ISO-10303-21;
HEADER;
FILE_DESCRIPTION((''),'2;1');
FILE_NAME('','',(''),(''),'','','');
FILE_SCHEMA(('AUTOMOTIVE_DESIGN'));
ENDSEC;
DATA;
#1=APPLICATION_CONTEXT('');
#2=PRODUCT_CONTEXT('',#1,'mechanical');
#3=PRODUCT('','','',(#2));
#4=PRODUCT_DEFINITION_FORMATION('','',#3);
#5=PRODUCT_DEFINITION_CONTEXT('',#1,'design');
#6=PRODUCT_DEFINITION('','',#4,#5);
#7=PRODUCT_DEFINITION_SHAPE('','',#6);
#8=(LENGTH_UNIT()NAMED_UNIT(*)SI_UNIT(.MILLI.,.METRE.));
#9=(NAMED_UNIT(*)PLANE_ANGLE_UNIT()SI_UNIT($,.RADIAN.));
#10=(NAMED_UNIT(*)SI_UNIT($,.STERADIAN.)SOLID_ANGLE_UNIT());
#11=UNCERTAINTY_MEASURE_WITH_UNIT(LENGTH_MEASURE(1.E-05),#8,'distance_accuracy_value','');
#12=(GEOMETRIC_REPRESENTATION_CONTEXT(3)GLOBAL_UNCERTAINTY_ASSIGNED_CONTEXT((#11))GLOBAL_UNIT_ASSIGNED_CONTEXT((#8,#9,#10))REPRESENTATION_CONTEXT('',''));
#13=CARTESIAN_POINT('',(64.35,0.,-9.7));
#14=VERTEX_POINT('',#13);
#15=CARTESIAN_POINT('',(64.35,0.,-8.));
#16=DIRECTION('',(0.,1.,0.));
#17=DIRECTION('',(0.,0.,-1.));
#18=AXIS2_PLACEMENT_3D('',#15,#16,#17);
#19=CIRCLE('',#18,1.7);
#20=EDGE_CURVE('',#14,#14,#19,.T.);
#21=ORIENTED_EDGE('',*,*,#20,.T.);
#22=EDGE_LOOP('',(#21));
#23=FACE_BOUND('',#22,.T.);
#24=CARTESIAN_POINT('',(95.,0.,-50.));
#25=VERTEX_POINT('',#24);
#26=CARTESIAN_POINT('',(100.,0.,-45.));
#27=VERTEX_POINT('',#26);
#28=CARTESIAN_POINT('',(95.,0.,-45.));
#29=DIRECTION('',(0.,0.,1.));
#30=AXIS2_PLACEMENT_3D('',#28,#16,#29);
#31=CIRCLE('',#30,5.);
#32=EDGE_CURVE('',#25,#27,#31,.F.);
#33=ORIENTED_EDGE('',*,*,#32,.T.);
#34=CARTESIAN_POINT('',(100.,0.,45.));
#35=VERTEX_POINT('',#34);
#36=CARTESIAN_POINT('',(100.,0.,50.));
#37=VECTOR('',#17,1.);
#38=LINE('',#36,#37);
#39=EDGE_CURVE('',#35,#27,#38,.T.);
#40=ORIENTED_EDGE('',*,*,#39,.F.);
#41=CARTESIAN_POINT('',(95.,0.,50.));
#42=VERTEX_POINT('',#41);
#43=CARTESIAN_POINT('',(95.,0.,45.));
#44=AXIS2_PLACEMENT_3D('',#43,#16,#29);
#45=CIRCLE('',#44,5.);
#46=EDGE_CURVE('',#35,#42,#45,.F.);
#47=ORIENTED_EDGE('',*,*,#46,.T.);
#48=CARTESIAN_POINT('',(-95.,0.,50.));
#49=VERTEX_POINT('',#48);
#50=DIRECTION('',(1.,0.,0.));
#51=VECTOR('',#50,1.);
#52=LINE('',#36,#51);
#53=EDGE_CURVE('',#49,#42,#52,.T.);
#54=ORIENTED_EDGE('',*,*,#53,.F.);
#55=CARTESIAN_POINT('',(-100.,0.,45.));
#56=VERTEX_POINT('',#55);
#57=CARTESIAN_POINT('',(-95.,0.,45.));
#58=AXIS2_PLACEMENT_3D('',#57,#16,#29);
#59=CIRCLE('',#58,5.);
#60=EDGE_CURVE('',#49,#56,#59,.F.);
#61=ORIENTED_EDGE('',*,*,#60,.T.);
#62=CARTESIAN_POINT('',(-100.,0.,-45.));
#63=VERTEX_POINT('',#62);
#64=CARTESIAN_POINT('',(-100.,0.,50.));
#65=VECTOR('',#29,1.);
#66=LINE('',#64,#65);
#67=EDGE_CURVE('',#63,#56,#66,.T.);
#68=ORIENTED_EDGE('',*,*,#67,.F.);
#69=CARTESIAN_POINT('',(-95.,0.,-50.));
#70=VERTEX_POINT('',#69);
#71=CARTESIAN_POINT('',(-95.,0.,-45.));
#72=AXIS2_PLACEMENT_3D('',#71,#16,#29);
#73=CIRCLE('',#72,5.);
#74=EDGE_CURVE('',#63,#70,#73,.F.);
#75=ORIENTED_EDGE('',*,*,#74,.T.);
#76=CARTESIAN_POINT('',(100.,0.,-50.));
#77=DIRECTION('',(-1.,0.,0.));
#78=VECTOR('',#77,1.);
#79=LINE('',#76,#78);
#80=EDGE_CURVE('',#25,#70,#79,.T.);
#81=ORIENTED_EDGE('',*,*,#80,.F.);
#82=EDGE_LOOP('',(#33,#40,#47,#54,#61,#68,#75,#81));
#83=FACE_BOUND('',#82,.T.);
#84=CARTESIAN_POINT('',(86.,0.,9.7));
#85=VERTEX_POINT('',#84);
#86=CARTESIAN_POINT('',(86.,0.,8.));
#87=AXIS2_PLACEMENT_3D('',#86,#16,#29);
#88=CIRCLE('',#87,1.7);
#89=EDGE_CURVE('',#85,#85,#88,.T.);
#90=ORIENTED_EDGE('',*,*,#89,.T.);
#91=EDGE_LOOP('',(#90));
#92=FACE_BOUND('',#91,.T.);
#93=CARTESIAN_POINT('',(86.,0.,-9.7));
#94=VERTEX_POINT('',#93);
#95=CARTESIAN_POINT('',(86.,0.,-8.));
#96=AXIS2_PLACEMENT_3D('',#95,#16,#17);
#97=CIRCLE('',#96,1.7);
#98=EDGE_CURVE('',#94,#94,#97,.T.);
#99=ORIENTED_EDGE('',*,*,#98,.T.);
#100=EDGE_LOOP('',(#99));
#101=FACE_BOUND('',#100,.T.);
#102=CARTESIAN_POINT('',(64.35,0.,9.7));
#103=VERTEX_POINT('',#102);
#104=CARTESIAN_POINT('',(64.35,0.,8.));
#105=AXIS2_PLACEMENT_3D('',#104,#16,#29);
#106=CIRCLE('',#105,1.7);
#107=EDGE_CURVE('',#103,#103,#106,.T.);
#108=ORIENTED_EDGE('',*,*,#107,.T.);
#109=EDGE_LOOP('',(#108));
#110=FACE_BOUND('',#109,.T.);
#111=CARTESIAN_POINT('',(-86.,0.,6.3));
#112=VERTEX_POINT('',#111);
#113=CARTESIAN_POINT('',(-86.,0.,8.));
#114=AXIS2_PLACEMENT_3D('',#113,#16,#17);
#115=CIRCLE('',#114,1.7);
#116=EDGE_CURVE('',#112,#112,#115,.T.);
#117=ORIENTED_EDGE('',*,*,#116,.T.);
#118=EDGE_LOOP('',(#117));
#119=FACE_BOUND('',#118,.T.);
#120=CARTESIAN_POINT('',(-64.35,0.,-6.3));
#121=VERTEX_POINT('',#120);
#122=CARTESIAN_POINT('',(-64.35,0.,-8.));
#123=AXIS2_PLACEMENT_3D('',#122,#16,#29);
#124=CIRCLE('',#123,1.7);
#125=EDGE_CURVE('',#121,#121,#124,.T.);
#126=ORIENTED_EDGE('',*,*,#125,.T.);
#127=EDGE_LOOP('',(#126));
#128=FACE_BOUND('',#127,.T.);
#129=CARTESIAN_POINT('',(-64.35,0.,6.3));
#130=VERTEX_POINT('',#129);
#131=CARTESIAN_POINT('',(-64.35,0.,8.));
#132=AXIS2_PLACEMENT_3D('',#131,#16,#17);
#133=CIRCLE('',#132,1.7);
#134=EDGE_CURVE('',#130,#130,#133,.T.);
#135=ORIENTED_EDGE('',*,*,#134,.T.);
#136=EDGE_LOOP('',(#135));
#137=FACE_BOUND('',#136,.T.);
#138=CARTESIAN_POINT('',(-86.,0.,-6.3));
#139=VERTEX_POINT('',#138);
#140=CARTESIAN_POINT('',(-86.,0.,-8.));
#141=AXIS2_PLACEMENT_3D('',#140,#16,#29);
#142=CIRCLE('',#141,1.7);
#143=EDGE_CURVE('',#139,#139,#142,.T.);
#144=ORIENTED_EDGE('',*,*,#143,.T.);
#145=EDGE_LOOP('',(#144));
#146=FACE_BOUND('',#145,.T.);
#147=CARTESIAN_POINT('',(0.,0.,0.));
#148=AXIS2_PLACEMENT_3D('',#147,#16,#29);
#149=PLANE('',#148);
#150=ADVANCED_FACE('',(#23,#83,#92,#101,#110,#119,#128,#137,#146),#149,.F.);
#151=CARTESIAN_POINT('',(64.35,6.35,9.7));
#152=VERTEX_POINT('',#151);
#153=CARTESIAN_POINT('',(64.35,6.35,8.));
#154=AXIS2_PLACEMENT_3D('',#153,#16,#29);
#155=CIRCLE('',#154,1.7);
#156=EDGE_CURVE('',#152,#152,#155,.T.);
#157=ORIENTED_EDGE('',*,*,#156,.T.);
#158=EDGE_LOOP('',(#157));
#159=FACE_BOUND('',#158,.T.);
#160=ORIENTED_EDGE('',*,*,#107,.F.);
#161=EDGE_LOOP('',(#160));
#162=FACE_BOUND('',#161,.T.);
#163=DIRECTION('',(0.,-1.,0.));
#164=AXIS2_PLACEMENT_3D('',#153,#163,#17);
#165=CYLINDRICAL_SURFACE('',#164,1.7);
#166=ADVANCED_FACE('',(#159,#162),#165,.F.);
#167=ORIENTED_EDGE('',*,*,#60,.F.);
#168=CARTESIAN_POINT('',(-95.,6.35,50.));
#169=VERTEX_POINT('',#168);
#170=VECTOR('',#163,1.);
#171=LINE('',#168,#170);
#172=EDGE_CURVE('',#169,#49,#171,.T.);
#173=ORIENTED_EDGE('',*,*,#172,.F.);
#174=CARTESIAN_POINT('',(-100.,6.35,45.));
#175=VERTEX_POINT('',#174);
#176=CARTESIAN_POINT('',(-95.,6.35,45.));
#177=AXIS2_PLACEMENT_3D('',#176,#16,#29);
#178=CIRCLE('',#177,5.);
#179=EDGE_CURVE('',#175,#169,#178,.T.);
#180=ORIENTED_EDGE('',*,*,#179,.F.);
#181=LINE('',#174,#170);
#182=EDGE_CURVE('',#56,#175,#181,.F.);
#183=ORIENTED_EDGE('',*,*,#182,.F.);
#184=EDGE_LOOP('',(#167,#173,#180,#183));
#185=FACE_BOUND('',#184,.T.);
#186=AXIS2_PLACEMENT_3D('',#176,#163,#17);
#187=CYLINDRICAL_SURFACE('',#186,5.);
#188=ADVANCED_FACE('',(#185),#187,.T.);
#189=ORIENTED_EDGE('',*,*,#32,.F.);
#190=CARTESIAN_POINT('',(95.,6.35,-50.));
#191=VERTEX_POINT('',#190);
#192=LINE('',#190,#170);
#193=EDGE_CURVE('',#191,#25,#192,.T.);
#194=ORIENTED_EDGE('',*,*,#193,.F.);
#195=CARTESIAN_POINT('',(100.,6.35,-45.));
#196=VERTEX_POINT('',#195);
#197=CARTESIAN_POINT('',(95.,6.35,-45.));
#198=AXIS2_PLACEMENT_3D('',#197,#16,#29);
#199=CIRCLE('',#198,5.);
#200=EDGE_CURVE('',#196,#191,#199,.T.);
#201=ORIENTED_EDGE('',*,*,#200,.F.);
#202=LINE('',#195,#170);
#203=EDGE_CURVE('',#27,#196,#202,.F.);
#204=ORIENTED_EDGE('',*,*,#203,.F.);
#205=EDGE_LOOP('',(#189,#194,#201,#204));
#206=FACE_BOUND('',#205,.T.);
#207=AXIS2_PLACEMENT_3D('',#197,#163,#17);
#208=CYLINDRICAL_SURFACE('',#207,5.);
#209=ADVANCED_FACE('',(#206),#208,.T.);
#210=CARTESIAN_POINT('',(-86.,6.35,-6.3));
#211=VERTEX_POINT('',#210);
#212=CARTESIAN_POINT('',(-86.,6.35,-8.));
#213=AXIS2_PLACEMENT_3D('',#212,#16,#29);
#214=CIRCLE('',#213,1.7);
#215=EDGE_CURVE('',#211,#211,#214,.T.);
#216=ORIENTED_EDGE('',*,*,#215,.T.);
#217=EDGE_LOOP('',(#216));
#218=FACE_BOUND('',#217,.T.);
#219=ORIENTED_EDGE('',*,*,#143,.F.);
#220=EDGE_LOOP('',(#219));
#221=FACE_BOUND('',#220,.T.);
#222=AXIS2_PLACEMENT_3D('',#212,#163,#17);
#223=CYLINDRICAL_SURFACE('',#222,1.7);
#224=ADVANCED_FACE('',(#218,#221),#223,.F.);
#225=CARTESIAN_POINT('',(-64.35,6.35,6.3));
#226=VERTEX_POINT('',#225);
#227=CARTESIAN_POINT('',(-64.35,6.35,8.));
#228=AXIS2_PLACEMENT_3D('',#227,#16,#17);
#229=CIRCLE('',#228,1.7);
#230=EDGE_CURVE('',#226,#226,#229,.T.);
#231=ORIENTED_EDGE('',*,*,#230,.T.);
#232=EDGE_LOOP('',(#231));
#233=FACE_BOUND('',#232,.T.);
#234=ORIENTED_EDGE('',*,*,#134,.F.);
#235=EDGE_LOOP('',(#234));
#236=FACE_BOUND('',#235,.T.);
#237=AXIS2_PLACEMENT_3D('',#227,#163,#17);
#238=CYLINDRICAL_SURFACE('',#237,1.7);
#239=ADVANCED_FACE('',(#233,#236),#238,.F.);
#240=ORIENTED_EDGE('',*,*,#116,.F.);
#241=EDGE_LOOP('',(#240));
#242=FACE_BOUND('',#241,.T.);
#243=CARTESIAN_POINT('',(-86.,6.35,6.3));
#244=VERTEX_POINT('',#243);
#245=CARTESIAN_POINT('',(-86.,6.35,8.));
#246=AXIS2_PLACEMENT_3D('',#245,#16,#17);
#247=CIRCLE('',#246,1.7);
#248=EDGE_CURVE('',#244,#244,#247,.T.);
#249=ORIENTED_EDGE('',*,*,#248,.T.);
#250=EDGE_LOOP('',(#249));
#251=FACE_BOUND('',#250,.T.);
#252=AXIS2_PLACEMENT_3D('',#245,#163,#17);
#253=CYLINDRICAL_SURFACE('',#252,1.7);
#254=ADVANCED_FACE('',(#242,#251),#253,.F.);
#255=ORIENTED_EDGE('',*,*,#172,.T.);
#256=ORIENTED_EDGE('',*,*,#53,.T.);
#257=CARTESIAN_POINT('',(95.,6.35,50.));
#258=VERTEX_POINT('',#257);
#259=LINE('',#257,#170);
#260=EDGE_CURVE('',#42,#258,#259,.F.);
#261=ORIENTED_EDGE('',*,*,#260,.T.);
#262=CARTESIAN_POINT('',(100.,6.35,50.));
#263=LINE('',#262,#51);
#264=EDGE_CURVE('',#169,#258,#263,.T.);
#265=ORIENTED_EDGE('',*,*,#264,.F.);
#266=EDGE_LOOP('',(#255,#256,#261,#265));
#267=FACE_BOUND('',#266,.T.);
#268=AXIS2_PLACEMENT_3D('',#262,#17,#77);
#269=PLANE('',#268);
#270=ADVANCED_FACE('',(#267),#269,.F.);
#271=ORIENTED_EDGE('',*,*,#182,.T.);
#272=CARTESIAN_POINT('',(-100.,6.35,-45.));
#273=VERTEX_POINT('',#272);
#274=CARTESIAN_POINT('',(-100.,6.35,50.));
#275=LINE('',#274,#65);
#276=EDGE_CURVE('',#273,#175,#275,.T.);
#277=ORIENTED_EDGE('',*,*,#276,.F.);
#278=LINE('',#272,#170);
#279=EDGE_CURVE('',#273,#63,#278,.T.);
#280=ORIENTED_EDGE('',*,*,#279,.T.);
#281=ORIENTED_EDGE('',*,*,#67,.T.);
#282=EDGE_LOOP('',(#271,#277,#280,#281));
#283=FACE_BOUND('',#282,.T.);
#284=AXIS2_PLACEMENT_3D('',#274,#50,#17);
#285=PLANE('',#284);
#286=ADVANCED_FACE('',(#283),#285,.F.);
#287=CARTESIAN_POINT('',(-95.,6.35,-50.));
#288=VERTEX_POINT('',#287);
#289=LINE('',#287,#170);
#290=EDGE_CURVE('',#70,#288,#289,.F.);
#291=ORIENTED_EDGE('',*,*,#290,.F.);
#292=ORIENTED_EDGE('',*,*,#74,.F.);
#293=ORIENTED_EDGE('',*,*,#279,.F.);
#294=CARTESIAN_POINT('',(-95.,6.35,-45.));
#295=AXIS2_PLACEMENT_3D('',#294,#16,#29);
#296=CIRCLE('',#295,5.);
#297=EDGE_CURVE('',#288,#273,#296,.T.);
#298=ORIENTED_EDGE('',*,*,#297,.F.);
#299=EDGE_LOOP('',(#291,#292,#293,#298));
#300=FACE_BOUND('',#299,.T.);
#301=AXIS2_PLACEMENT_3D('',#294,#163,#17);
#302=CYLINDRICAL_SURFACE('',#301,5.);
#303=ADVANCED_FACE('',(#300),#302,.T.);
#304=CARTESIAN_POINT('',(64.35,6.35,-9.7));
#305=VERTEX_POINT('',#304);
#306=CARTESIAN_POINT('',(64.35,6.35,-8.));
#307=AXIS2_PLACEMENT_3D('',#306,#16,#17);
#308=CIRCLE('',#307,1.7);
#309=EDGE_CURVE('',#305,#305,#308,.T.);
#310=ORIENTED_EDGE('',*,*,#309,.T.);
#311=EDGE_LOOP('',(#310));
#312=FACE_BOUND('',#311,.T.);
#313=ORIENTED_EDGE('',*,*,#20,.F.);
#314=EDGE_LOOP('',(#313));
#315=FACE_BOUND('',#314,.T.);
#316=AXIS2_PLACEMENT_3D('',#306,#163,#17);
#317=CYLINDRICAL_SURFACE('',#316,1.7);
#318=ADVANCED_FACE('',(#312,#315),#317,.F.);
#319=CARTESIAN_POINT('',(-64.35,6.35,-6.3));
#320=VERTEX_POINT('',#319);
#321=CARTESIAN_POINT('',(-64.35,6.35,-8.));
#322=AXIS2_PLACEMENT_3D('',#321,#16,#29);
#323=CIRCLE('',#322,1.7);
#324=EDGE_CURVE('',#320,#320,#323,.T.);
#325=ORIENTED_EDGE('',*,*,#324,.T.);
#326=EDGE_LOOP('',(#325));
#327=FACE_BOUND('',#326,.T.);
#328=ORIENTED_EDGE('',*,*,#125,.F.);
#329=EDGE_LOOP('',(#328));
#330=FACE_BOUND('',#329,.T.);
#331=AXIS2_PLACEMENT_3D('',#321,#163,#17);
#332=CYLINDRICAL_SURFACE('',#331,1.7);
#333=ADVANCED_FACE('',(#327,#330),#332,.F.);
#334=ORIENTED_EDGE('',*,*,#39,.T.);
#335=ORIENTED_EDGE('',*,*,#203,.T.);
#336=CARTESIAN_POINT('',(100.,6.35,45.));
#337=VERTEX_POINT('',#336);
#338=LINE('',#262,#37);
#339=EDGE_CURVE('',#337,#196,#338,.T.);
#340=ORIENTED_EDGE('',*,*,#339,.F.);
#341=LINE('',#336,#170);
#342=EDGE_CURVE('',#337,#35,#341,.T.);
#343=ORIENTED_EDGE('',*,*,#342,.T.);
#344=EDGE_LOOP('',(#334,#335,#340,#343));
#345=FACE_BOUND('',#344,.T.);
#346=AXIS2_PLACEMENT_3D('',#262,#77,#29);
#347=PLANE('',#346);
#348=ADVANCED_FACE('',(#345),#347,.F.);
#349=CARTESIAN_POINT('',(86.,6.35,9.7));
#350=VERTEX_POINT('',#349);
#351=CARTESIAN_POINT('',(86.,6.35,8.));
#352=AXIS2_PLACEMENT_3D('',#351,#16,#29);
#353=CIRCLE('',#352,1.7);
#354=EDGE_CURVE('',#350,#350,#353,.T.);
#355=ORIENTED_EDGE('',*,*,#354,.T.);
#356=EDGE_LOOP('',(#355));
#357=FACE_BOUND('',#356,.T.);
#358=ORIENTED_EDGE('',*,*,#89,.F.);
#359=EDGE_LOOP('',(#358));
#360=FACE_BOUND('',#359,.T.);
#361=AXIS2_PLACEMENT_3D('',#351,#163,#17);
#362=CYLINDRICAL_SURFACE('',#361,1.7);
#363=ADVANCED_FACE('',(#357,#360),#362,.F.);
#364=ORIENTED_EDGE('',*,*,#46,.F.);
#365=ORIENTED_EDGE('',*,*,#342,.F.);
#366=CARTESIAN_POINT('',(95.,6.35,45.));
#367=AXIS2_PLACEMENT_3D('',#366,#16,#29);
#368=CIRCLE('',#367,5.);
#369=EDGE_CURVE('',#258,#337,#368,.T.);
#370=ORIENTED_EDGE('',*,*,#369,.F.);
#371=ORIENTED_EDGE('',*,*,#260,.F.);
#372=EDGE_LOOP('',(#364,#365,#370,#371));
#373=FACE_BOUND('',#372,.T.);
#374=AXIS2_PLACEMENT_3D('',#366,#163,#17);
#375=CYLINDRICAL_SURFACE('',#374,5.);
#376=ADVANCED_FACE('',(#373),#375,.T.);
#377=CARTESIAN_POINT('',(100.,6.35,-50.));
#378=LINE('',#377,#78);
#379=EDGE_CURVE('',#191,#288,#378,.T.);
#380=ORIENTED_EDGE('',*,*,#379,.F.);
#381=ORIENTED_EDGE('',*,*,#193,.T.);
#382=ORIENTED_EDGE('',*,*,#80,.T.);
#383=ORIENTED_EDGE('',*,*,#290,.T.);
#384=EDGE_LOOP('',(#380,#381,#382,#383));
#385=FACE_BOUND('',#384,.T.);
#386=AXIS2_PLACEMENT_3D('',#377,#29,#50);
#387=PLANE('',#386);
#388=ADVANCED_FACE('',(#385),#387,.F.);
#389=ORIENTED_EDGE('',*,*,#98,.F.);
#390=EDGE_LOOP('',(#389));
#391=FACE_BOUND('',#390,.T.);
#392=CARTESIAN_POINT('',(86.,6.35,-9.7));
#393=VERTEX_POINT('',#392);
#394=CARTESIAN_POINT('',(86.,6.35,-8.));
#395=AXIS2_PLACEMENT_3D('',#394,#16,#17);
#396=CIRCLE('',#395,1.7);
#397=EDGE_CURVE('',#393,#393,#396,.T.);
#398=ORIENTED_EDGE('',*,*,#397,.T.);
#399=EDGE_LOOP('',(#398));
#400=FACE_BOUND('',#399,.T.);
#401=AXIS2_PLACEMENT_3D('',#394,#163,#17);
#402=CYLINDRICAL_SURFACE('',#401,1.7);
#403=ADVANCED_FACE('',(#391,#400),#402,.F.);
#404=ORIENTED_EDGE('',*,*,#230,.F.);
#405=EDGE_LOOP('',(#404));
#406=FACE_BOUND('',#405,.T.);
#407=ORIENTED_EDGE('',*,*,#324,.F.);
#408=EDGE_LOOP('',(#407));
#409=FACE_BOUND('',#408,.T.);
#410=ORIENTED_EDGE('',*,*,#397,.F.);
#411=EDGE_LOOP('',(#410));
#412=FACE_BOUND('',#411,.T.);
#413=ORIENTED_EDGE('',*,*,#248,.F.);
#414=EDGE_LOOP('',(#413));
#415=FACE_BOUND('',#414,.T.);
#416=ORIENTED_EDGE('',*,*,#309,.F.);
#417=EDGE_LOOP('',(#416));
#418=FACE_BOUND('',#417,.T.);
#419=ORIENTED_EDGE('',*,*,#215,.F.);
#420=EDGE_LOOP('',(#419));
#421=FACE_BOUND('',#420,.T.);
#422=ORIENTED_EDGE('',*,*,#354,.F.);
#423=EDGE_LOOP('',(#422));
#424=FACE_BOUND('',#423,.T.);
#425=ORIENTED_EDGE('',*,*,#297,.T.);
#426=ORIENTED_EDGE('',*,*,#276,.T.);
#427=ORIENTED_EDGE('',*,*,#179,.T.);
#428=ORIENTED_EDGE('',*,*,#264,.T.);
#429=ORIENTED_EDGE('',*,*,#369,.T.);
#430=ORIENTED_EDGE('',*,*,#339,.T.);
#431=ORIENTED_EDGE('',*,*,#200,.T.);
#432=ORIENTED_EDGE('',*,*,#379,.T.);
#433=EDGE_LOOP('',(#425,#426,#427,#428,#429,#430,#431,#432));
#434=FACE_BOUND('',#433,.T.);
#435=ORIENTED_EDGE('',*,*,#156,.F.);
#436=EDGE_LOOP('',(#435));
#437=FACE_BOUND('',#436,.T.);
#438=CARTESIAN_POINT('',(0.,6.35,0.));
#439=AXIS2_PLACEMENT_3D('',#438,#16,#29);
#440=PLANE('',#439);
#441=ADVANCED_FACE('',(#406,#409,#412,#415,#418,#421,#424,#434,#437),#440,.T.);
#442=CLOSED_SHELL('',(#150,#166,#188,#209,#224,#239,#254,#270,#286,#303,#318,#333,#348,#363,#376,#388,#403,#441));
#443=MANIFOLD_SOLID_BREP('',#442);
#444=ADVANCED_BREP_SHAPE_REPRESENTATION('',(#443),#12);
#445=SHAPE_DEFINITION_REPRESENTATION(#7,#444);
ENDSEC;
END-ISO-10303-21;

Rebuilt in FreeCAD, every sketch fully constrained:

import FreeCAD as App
import Part
import Sketcher

V = App.Vector


def edges_at(feature, points):
    """Names of the edges that pass closest to the given points."""
    edges = feature.Shape.Edges
    near = lambda p: min(range(len(edges)), key=lambda i: edges[i].distToShape(Part.Vertex(*p))[0])
    return sorted({f"Edge{near(p) + 1}" for p in points})


def add_polygon(sketch, points):
    """Adds a closed chain of lines whose ends are joined by coincident constraints."""
    first, n = sketch.GeometryCount, len(points)
    for a, b in zip(points, points[1:] + points[:1]):
        sketch.addGeometry(Part.LineSegment(App.Vector(*a, 0), App.Vector(*b, 0)), False)
    for i in range(n):
        sketch.addConstraint(Sketcher.Constraint("Coincident", first + i, 2, first + (i + 1) % n, 1))

doc = App.newDocument("Part")
params = doc.addObject("Spreadsheet::Sheet", "Params")
for row, (alias, value) in enumerate([
    ("sketch1_diameter", "3.4 mm"),
    ("sketch1_width", "200 mm"),
    ("sketch1_height", "100 mm"),
    ("pad1_length", "6.35 mm"),
    ("fillet_radius", "5 mm"),
], start=1):
    params.set(f"A{row}", alias)
    params.set(f"B{row}", "=" + value)
    params.setAlias(f"B{row}", alias)

body = doc.addObject("PartDesign::Body", "Body")

# Sketch on XZ plane
sketch1 = doc.addObject("Sketcher::SketchObject", "Sketch")
body.addObject(sketch1)
sketch1.AttachmentSupport = (doc.XZ_Plane, [""])
sketch1.MapMode = "FlatFace"
add_polygon(sketch1, [(-100, -50), (-100, 50), (100, 50), (100, -50)])  # lines 0-3
sketch1.addGeometry(Part.Circle(V(-86, 8, 0), V(0, 0, 1), 1.7), False)  # 4
sketch1.addGeometry(Part.Circle(V(-64.3, 8, 0), V(0, 0, 1), 1.7), False)  # 5
sketch1.addGeometry(Part.Circle(V(64.3, 8, 0), V(0, 0, 1), 1.7), False)  # 6
sketch1.addGeometry(Part.Circle(V(86, 8, 0), V(0, 0, 1), 1.7), False)  # 7
sketch1.addGeometry(Part.Circle(V(-86, -8, 0), V(0, 0, 1), 1.7), False)  # 8
sketch1.addGeometry(Part.Circle(V(-64.3, -8, 0), V(0, 0, 1), 1.7), False)  # 9
sketch1.addGeometry(Part.Circle(V(64.3, -8, 0), V(0, 0, 1), 1.7), False)  # 10
sketch1.addGeometry(Part.Circle(V(86, -8, 0), V(0, 0, 1), 1.7), False)  # 11
sketch1.addConstraint([
    Sketcher.Constraint("Vertical", 0),
    Sketcher.Constraint("Horizontal", 1),
    Sketcher.Constraint("Vertical", 2),
    Sketcher.Constraint("Horizontal", 3),
    Sketcher.Constraint("Equal", 4, 5),
    Sketcher.Constraint("Equal", 5, 6),
    Sketcher.Constraint("Equal", 6, 7),
    Sketcher.Constraint("Equal", 7, 8),
    Sketcher.Constraint("Equal", 8, 9),
    Sketcher.Constraint("Equal", 9, 10),
    Sketcher.Constraint("Equal", 10, 11),
    Sketcher.Constraint("Symmetric", 7, 3, 8, 3, -1, 1),
    Sketcher.Constraint("Symmetric", 6, 3, 9, 3, -1, 1),
    Sketcher.Constraint("Symmetric", 5, 3, 10, 3, -1, 1),
    Sketcher.Constraint("Symmetric", 4, 3, 11, 3, -1, 1),
    Sketcher.Constraint("Symmetric", 0, 2, 2, 2, -1, 1),
    Sketcher.Constraint("Symmetric", 5, 3, 6, 3, -2),
    Sketcher.Constraint("Symmetric", 4, 3, 7, 3, -2),
    Sketcher.Constraint("Horizontal", 4, 3, 5, 3),
    Sketcher.Constraint("Diameter", 4, 3.4),
    Sketcher.Constraint("DistanceX", 1, 1, 1, 2, 200.0),
    Sketcher.Constraint("DistanceY", 0, 1, 0, 2, 100.0),
    Sketcher.Constraint("DistanceX", 4, 3, -1, 1, 86.0),
    Sketcher.Constraint("DistanceY", -1, 1, 4, 3, 8.0),
    Sketcher.Constraint("DistanceX", 5, 3, 6, 3, 128.7),
])
sketch1.setExpression("Constraints[23]", "Params.sketch1_diameter")
sketch1.setExpression("Constraints[24]", "Params.sketch1_width")
sketch1.setExpression("Constraints[25]", "Params.sketch1_height")
pad1 = doc.addObject("PartDesign::Pad", "Pad")
body.addObject(pad1)
pad1.Profile = sketch1
pad1.setExpression("Length", "Params.pad1_length")
pad1.Reversed = True
doc.recompute()

fillet = doc.addObject("PartDesign::Fillet", "Fillet")
body.addObject(fillet)
fillet.Base = (pad1, edges_at(pad1, [
    (-100, 3.175, -50),
    (100, 3.175, -50),
    (100, 3.175, 50),
    (-100, 3.175, 50),
]))
fillet.setExpression("Radius", "Params.fillet_radius")

doc.recompute()
